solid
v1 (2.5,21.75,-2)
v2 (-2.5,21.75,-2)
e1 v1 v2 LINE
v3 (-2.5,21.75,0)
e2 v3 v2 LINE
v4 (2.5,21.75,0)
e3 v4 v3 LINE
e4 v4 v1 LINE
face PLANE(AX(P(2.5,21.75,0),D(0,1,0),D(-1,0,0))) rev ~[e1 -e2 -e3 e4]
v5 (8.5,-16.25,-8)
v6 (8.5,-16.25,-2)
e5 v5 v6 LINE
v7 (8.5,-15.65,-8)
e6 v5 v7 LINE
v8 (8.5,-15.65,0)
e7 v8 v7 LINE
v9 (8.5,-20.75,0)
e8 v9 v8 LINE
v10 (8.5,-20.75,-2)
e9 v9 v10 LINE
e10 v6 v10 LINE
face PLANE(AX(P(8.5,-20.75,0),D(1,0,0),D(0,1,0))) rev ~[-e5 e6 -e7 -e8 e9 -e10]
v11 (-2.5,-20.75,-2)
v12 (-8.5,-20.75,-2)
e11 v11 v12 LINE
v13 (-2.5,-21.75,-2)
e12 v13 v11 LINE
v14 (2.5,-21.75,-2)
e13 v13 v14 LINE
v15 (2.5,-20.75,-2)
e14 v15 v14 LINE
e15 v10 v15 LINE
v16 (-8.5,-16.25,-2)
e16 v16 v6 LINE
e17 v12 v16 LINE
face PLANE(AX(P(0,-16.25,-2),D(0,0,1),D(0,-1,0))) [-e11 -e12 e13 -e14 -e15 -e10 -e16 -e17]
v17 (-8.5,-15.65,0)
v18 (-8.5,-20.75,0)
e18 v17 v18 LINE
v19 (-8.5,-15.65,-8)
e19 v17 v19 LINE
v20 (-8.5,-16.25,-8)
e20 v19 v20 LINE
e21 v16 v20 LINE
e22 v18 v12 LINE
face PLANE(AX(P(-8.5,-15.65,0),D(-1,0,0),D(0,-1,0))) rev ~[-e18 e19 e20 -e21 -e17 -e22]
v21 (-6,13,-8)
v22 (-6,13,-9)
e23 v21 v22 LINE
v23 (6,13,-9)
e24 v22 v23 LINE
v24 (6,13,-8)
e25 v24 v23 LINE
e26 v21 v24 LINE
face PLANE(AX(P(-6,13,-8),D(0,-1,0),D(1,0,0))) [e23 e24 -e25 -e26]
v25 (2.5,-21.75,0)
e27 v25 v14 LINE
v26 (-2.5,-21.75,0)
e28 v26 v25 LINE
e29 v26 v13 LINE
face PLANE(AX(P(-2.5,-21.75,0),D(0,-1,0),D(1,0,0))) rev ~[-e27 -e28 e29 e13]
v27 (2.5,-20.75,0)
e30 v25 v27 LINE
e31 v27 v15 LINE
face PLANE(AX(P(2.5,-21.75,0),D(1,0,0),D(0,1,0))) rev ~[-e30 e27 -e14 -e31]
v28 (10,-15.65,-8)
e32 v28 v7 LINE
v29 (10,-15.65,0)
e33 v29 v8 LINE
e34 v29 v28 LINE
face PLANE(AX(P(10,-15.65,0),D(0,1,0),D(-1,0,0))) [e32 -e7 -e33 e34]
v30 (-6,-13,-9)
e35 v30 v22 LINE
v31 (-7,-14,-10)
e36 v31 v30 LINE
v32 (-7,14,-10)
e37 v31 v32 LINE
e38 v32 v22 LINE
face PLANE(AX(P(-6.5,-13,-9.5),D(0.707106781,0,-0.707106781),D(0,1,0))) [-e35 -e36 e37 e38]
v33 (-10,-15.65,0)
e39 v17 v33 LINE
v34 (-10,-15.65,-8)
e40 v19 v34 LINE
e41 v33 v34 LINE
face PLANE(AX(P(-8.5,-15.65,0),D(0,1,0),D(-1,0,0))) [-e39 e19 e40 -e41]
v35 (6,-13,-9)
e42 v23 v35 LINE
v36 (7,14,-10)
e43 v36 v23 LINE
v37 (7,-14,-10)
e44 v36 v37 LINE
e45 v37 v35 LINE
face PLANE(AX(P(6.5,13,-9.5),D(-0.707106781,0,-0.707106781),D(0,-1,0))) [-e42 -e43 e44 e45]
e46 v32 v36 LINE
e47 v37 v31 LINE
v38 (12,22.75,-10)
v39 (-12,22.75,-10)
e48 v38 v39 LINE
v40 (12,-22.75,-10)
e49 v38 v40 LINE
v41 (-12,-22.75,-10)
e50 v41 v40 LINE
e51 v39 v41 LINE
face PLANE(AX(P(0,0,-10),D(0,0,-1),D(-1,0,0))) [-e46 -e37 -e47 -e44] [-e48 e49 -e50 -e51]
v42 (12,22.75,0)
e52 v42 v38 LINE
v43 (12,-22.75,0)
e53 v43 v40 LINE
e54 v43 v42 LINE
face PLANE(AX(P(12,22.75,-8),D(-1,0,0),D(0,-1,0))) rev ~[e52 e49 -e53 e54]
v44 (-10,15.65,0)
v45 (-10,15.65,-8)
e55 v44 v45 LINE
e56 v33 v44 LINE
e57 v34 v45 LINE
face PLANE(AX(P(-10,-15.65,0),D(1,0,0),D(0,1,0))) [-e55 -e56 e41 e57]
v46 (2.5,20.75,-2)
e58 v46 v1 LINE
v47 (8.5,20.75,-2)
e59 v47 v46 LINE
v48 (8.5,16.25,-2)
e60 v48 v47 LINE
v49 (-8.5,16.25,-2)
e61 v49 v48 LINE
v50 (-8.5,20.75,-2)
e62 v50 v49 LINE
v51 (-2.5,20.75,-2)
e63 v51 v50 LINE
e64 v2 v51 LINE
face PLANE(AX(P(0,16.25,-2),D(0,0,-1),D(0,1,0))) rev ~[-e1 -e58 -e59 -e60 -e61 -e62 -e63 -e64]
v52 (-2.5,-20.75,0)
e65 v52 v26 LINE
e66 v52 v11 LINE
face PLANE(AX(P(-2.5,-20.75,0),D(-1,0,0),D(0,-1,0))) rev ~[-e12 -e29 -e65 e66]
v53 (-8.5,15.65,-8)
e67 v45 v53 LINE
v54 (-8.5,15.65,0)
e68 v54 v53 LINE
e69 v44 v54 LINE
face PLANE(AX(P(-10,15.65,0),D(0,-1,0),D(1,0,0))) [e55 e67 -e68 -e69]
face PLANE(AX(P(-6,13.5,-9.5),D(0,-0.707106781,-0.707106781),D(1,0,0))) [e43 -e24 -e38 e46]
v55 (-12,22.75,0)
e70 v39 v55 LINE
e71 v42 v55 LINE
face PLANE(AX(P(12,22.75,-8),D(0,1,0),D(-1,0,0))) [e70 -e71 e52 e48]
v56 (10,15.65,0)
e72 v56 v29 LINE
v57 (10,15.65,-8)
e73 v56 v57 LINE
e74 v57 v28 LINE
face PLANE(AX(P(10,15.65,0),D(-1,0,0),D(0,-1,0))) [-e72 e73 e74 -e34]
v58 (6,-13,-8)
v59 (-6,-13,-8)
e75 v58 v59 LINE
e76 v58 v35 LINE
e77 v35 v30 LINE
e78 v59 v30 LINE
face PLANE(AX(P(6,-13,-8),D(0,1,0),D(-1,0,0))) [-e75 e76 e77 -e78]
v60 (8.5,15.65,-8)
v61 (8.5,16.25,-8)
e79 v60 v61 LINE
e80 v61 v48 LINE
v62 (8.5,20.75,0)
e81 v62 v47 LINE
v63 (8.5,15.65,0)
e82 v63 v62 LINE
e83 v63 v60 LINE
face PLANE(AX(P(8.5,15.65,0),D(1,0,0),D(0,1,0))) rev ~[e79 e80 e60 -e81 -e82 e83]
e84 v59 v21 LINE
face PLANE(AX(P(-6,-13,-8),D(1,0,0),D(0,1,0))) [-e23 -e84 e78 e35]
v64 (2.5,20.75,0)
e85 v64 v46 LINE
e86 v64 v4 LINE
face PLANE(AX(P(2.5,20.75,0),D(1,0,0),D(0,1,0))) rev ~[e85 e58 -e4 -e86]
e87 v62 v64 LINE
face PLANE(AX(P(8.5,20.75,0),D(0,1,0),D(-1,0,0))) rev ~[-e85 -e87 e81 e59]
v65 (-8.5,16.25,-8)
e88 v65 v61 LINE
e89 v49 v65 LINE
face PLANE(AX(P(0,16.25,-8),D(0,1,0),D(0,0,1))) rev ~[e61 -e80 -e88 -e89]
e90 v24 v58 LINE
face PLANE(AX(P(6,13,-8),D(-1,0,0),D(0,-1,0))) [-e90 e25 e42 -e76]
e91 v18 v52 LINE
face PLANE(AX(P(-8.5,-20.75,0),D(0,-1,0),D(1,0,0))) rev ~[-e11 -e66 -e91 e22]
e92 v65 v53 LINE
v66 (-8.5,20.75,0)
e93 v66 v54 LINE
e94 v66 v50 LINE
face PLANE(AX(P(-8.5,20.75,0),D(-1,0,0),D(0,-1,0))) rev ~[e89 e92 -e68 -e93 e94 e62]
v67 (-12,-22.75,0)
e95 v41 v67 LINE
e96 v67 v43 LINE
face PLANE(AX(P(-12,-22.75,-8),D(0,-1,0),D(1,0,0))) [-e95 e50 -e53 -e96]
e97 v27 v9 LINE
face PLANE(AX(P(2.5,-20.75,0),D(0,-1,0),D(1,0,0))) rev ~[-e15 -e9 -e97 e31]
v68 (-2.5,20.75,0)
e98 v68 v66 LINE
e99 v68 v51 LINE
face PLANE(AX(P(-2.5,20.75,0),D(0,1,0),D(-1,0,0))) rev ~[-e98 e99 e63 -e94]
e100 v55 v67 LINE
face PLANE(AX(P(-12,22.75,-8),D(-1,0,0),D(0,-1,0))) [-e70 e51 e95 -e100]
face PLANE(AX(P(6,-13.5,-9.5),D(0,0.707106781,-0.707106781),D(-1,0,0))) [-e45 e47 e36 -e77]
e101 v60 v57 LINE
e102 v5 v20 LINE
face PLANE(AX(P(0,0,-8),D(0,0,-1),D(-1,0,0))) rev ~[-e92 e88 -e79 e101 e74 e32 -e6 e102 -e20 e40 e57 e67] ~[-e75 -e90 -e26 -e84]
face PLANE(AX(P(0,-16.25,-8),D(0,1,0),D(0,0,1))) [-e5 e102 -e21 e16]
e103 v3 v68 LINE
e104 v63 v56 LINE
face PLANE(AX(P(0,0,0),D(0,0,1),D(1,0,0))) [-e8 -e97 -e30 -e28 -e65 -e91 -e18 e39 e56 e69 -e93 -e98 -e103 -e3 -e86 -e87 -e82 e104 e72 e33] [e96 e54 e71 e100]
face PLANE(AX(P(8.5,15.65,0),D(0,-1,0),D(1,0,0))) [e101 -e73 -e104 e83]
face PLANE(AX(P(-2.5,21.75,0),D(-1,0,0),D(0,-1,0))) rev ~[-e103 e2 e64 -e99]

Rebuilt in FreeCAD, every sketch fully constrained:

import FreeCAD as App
import Part
import Sketcher

V = App.Vector


def edges_at(feature, points):
    """Names of the edges that pass closest to the given points."""
    edges = feature.Shape.Edges
    near = lambda p: min(range(len(edges)), key=lambda i: edges[i].distToShape(Part.Vertex(*p))[0])
    return sorted({f"Edge{near(p) + 1}" for p in points})


def add_polygon(sketch, points):
    """Adds a closed chain of lines whose ends are joined by coincident constraints."""
    first, n = sketch.GeometryCount, len(points)
    for a, b in zip(points, points[1:] + points[:1]):
        sketch.addGeometry(Part.LineSegment(App.Vector(*a, 0), App.Vector(*b, 0)), False)
    for i in range(n):
        sketch.addConstraint(Sketcher.Constraint("Coincident", first + i, 2, first + (i + 1) % n, 1))

doc = App.newDocument("Part")
body = doc.addObject("PartDesign::Body", "Body")

sketch1 = doc.addObject("Sketcher::SketchObject", "Sketch")
body.addObject(sketch1)
sketch1.AttachmentSupport = (doc.XY_Plane, [""])
sketch1.MapMode = "FlatFace"
add_polygon(sketch1, [(12, -22.8), (12, 22.8), (-12, 22.8), (-12, -22.8)])
add_polygon(sketch1, [(-8.5, -15.7), (-10, -15.7), (-10, 15.7), (-8.5, 15.7), (-8.5, 20.8), (-2.5, 20.8), (-2.5, 21.8), (2.5, 21.8), (2.5, 20.8), (8.5, 20.8), (8.5, 15.7), (10, 15.7), (10, -15.7), (8.5, -15.7), (8.5, -20.8), (2.5, -20.8), (2.5, -21.8), (-2.5, -21.8), (-2.5, -20.8), (-8.5, -20.8)])
sketch1.addConstraint(Sketcher.Constraint("Vertical", 0))
sketch1.addConstraint(Sketcher.Constraint("Horizontal", 1))
sketch1.addConstraint(Sketcher.Constraint("Vertical", 2))
sketch1.addConstraint(Sketcher.Constraint("Horizontal", 3))
sketch1.addConstraint(Sketcher.Constraint("Horizontal", 4))
sketch1.addConstraint(Sketcher.Constraint("Vertical", 5))
sketch1.addConstraint(Sketcher.Constraint("Horizontal", 6))
sketch1.addConstraint(Sketcher.Constraint("Vertical", 7))
sketch1.addConstraint(Sketcher.Constraint("Horizontal", 8))
sketch1.addConstraint(Sketcher.Constraint("Vertical", 9))
sketch1.addConstraint(Sketcher.Constraint("Horizontal", 10))
sketch1.addConstraint(Sketcher.Constraint("Vertical", 11))
sketch1.addConstraint(Sketcher.Constraint("Horizontal", 12))
sketch1.addConstraint(Sketcher.Constraint("Vertical", 13))
sketch1.addConstraint(Sketcher.Constraint("Horizontal", 14))
sketch1.addConstraint(Sketcher.Constraint("Vertical", 15))
sketch1.addConstraint(Sketcher.Constraint("Horizontal", 16))
sketch1.addConstraint(Sketcher.Constraint("Vertical", 17))
sketch1.addConstraint(Sketcher.Constraint("Horizontal", 18))
sketch1.addConstraint(Sketcher.Constraint("Vertical", 19))
sketch1.addConstraint(Sketcher.Constraint("Horizontal", 20))
sketch1.addConstraint(Sketcher.Constraint("Vertical", 21))
sketch1.addConstraint(Sketcher.Constraint("Horizontal", 22))
sketch1.addConstraint(Sketcher.Constraint("Vertical", 23))
sketch1.addConstraint(Sketcher.Constraint("Symmetric", 0, 2, 2, 2, -1, 1))
sketch1.addConstraint(Sketcher.Constraint("Symmetric", 4, 2, 14, 2, -1, 1))
sketch1.addConstraint(Sketcher.Constraint("Symmetric", 6, 2, 16, 2, -1, 1))
sketch1.addConstraint(Sketcher.Constraint("Symmetric", 8, 2, 18, 2, -1, 1))
sketch1.addConstraint(Sketcher.Constraint("Symmetric", 10, 2, 20, 2, -1, 1))
sketch1.addConstraint(Sketcher.Constraint("Symmetric", 12, 2, 22, 2, -1, 1))
sketch1.addConstraint(Sketcher.Constraint("Symmetric", 8, 2, 11, 2, -2))
sketch1.addConstraint(Sketcher.Constraint("Symmetric", 6, 2, 13, 2, -2))
sketch1.addConstraint(Sketcher.Constraint("DistanceX", 2, 2, 4, 2, 2.0))
sketch1.addConstraint(Sketcher.Constraint("DistanceY", 7, 2, 1, 2, 2.0))
sketch1.addConstraint(Sketcher.Constraint("DistanceX", 1, 2, 1, 1, 24.0))
sketch1.addConstraint(Sketcher.Constraint("DistanceX", 8, 1, 8, 2, 6.0))
sketch1.addConstraint(Sketcher.Constraint("DistanceX", 10, 1, 10, 2, 5.0))
sketch1.addConstraint(Sketcher.Constraint("DistanceY", 9, 1, 9, 2, 1.0))
sketch1.addConstraint(Sketcher.Constraint("DistanceY", 0, 1, 0, 2, 45.5))
sketch1.addConstraint(Sketcher.Constraint("DistanceY", 5, 1, 5, 2, 31.3))
pad1 = doc.addObject("PartDesign::Pad", "Pad")
body.addObject(pad1)
pad1.Profile = sketch1
pad1.Length = 8
pad1.Reversed = True

sketch2 = doc.addObject("Sketcher::SketchObject", "Sketch001")
body.addObject(sketch2)
sketch2.AttachmentSupport = (doc.YZ_Plane, [""])
sketch2.MapMode = "FlatFace"
add_polygon(sketch2, [(16, -2), (22, -2), (22, -8), (16, -8)])
add_polygon(sketch2, [(-16, -2), (-16, -8), (-22, -8), (-22, -2)])
sketch2.addConstraint(Sketcher.Constraint("Horizontal", 0))
sketch2.addConstraint(Sketcher.Constraint("Vertical", 1))
sketch2.addConstraint(Sketcher.Constraint("Horizontal", 2))
sketch2.addConstraint(Sketcher.Constraint("Vertical", 3))
sketch2.addConstraint(Sketcher.Constraint("Vertical", 4))
sketch2.addConstraint(Sketcher.Constraint("Horizontal", 5))
sketch2.addConstraint(Sketcher.Constraint("Vertical", 6))
sketch2.addConstraint(Sketcher.Constraint("Horizontal", 7))
sketch2.addConstraint(Sketcher.Constraint("Symmetric", 2, 2, 4, 2, -2))
sketch2.addConstraint(Sketcher.Constraint("Symmetric", 0, 2, 6, 2, -2))
sketch2.addConstraint(Sketcher.Constraint("DistanceY", 1, 2, 1, 1, 6.0))
sketch2.addConstraint(Sketcher.Constraint("DistanceX", 0, 1, 0, 2, 5.5))
sketch2.addConstraint(Sketcher.Constraint("DistanceY", 0, 2, -1, 1, 2.0))
sketch2.addConstraint(Sketcher.Constraint("DistanceX", 4, 2, 1, 2, 38.0))
pad2 = doc.addObject("PartDesign::Pad", "Pad001")
body.addObject(pad2)
pad2.Profile = sketch2
pad2.Length = 24
pad2.Midplane = True

sketch3 = doc.addObject("Sketcher::SketchObject", "Sketch002")
body.addObject(sketch3)
sketch3.AttachmentSupport = (doc.XY_Plane, [""])
sketch3.MapMode = "FlatFace"
sketch3.AttachmentOffset = App.Placement(V(0, 0, -8), App.Rotation())
add_polygon(sketch3, [(-12, 23), (12, 23), (12, -23), (-12, -23)])
add_polygon(sketch3, [(-6, -13), (6, -13), (6, 13), (-6, 13)])
sketch3.addConstraint(Sketcher.Constraint("Horizontal", 0))
sketch3.addConstraint(Sketcher.Constraint("Vertical", 1))
sketch3.addConstraint(Sketcher.Constraint("Horizontal", 2))
sketch3.addConstraint(Sketcher.Constraint("Vertical", 3))
sketch3.addConstraint(Sketcher.Constraint("Horizontal", 4))
sketch3.addConstraint(Sketcher.Constraint("Vertical", 5))
sketch3.addConstraint(Sketcher.Constraint("Horizontal", 6))
sketch3.addConstraint(Sketcher.Constraint("Vertical", 7))
sketch3.addConstraint(Sketcher.Constraint("Symmetric", 0, 2, 2, 2, -1, 1))
sketch3.addConstraint(Sketcher.Constraint("Symmetric", 4, 2, 6, 2, -1, 1))
sketch3.addConstraint(Sketcher.Constraint("DistanceX", 0, 1, 0, 2, 24.0))
sketch3.addConstraint(Sketcher.Constraint("DistanceX", 4, 1, 4, 2, 12.0))
sketch3.addConstraint(Sketcher.Constraint("DistanceY", 5, 1, 5, 2, 26.0))
sketch3.addConstraint(Sketcher.Constraint("DistanceY", 1, 2, 1, 1, 45.5))
pad3 = doc.addObject("PartDesign::Pad", "Pad002")
body.addObject(pad3)
pad3.Profile = sketch3
pad3.Length = 2
pad3.Reversed = True
doc.recompute()

chamfer = doc.addObject("PartDesign::Chamfer", "Chamfer")
body.addObject(chamfer)
chamfer.Base = (pad3, edges_at(pad3, [
    (0, 13, -10),
    (-6, 0, -10),
    (6, 0, -10),
    (0, -13, -10),
]))
chamfer.Size = 1

doc.recompute()
